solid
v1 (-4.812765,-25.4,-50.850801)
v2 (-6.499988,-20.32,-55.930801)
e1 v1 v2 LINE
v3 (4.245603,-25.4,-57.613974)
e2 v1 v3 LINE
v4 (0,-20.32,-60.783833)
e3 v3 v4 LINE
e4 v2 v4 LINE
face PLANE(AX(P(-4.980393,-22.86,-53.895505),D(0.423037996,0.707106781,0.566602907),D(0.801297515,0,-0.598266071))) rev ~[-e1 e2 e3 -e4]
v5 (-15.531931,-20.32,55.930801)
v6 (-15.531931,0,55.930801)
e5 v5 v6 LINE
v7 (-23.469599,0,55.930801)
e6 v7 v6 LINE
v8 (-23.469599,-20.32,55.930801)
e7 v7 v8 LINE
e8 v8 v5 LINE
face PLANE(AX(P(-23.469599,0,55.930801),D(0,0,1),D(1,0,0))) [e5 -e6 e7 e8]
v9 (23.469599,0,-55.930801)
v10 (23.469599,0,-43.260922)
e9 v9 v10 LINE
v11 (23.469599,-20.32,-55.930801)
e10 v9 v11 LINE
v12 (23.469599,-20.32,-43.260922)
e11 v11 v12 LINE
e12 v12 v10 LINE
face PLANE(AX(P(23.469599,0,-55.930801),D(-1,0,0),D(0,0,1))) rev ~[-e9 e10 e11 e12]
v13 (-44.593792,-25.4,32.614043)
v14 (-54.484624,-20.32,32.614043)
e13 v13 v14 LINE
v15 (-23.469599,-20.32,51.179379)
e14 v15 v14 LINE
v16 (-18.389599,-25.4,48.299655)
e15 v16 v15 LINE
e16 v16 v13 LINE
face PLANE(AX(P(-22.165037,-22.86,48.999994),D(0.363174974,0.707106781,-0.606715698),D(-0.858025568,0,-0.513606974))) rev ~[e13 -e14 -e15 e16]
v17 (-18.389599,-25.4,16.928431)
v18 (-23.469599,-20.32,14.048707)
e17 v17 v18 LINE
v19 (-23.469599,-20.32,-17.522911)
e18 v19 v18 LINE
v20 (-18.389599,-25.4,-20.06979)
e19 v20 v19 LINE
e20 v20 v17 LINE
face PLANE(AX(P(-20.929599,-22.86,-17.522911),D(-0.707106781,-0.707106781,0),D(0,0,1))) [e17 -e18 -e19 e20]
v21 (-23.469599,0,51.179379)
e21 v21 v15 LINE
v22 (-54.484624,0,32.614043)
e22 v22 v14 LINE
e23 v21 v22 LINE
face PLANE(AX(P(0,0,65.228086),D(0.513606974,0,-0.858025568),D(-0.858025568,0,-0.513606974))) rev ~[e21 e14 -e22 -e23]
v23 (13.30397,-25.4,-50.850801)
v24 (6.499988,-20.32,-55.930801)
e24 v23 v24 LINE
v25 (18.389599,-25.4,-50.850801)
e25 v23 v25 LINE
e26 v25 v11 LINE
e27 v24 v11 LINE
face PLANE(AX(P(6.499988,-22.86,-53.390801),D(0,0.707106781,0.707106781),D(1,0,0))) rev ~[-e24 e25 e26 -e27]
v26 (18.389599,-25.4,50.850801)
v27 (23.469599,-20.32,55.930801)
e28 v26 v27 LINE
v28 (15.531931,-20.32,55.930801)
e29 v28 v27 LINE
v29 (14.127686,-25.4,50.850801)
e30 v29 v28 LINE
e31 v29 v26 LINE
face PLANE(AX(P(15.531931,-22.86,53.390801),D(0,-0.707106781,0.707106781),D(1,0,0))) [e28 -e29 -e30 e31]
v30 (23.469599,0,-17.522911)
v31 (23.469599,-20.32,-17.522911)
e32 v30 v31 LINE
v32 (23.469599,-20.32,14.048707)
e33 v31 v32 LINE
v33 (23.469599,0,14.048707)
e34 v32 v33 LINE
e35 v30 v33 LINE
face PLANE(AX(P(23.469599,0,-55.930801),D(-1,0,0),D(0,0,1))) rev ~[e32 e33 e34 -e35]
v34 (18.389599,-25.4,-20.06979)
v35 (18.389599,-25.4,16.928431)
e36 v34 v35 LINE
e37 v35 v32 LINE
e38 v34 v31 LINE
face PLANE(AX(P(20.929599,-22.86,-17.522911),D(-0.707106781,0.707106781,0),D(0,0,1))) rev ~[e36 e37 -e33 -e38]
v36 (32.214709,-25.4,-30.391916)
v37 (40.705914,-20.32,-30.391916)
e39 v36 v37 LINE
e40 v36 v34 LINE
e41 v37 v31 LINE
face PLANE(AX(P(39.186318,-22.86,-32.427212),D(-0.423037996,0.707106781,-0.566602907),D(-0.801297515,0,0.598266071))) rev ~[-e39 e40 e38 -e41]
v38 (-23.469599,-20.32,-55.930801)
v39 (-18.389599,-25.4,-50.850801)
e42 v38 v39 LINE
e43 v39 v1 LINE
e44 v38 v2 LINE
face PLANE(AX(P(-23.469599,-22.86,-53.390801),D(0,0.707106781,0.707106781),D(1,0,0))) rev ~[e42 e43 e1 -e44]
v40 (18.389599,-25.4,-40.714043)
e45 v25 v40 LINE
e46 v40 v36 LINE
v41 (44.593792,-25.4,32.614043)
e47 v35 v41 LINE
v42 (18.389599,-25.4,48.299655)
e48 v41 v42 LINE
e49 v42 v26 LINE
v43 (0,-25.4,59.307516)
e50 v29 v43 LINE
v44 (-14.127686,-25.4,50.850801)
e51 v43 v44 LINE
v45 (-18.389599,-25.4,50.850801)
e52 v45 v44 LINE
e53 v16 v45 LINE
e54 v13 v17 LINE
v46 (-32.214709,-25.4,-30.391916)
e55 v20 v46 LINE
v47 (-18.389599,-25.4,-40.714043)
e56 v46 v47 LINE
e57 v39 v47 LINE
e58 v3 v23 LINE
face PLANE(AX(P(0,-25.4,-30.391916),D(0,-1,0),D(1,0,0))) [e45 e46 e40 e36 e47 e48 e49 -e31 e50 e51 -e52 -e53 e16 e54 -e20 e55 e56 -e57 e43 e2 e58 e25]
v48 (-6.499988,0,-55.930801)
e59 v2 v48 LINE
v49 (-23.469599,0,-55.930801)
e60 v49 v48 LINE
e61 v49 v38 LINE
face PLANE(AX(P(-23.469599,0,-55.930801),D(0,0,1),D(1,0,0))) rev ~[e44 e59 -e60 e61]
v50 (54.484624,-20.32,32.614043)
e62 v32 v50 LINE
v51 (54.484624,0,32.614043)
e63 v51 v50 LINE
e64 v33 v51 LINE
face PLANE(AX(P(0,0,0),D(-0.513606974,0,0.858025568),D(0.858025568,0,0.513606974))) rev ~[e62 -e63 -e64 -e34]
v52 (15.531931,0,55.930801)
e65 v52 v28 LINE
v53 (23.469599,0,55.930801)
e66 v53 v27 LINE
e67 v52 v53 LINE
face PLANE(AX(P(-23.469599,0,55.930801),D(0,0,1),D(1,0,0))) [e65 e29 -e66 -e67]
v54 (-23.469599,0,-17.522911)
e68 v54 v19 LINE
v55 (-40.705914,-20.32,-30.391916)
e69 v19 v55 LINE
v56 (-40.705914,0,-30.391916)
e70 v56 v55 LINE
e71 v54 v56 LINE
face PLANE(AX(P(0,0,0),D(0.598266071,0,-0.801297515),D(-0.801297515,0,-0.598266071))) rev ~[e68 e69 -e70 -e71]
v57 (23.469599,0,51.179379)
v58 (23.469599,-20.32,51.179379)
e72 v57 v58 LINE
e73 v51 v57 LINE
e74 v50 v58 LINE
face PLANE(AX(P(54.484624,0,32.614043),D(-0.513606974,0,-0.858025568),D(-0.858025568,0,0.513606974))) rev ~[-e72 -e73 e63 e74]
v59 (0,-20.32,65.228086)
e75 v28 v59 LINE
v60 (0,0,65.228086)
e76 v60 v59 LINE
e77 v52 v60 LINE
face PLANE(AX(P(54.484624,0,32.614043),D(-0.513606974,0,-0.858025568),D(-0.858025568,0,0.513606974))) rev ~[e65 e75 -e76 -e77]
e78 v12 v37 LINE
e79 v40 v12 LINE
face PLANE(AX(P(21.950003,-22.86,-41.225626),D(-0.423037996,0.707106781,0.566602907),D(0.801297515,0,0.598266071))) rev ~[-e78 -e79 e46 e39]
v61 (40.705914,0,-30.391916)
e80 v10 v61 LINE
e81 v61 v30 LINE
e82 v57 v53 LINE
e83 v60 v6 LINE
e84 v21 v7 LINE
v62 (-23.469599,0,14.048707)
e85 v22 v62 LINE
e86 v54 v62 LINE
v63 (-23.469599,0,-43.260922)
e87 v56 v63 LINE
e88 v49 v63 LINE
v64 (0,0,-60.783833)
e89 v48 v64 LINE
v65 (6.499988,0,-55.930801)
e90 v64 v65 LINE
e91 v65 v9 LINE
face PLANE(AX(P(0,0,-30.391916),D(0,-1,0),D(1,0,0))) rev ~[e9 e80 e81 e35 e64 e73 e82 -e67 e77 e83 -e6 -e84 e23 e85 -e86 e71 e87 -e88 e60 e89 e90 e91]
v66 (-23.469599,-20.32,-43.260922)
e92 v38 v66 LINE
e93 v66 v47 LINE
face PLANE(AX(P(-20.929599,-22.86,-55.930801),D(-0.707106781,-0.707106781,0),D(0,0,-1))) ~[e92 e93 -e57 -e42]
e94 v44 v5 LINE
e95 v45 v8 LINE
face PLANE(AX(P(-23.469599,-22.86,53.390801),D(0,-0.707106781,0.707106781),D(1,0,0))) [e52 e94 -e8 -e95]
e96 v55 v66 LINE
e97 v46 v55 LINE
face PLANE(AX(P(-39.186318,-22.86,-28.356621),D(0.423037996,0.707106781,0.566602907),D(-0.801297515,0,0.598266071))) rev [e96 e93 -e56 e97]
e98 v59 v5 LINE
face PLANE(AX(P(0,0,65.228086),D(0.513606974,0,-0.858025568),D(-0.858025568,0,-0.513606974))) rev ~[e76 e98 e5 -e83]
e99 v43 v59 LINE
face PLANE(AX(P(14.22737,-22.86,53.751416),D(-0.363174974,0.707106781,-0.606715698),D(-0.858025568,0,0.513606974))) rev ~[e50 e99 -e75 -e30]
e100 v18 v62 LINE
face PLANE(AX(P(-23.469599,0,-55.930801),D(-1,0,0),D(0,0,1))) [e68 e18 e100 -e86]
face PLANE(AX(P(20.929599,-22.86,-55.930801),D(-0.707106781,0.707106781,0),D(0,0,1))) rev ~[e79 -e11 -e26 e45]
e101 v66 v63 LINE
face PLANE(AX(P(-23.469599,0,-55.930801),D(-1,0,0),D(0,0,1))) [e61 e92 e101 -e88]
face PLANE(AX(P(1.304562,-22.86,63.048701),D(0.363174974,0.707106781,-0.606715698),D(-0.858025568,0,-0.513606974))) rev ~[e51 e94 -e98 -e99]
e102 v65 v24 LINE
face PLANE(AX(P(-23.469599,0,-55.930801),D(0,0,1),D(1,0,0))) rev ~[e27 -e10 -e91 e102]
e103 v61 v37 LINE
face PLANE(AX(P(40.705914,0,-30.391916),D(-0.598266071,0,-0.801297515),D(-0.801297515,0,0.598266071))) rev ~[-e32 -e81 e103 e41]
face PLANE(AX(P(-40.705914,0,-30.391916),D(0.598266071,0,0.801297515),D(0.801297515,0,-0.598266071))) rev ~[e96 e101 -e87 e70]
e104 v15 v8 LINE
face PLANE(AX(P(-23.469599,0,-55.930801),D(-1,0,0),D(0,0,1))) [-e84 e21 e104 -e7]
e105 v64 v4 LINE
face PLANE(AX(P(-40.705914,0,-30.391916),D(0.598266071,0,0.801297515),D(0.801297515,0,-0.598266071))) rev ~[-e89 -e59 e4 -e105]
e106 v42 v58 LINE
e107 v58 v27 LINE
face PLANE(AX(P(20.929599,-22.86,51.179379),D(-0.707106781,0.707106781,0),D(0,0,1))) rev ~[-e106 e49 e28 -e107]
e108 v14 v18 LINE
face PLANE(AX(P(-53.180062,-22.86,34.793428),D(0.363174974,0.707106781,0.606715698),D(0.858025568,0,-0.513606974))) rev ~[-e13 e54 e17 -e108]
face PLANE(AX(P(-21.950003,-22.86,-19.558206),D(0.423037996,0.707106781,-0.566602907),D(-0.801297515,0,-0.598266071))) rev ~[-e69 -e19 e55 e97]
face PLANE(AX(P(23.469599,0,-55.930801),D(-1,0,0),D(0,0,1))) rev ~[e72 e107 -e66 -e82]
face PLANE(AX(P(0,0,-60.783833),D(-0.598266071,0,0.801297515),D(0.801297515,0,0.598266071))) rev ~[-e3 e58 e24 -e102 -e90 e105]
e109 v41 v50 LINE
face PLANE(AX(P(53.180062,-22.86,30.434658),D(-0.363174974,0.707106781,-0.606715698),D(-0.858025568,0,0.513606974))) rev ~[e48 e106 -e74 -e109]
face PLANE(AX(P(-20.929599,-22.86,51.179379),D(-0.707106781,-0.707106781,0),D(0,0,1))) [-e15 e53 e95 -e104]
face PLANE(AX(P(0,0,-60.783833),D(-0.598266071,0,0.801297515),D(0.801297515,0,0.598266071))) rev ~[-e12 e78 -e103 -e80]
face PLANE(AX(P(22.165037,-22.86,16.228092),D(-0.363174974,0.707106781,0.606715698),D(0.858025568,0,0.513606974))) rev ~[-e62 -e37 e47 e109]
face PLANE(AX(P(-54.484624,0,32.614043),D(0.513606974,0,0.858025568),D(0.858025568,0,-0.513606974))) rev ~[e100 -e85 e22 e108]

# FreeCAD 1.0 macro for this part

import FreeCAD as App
import Part
import Sketcher
from FreeCAD import Vector
Q = App.Units.Quantity


def edges_at(feature, points):
    """Names of the edges that pass closest to the given points."""
    edges = feature.Shape.Edges
    near = lambda p: min(range(len(edges)), key=lambda i: edges[i].distToShape(Part.Vertex(*p))[0])
    return sorted({f"Edge{near(p) + 1}" for p in points})


def add_polygon(sketch, points):
    """Adds a closed chain of lines whose ends are joined by coincident constraints."""
    first, n = sketch.GeometryCount, len(points)
    for a, b in zip(points, points[1:] + points[:1]):
        sketch.addGeometry(Part.LineSegment(App.Vector(*a, 0), App.Vector(*b, 0)), False)
    for i in range(n):
        sketch.addConstraint(Sketcher.Constraint("Coincident", first + i, 2, first + (i + 1) % n, 1))

doc = App.newDocument("Part")
params = doc.addObject("Spreadsheet::Sheet", "Params")
for row, (alias, value) in enumerate([
    ("sketch1_width", "1.8479999 in"),
    ("sketch1_height", "4.4040001 in"),
    ("pad1_length", "1 in"),
    ("sketch2_length", "2.5 in"),
    ("pad2_length", "1 in"),
    ("sketch3_length", "2 in"),
    ("pad3_length", "1 in"),
    ("chamfer_size", "0.2 in"),
], start=1):
    params.set(f"A{row}", alias)
    params.set(f"B{row}", "=" + value)
    params.setAlias(f"B{row}", alias)

body = doc.addObject("PartDesign::Body", "Body")

sketch1 = body.newObject("Sketcher::SketchObject", "Sketch")
sketch1.AttachmentSupport = (doc.getObject("XZ_Plane"), [""])
sketch1.MapMode = "FlatFace"
add_polygon(sketch1, [(-23.469599, 55.930801), (-23.469599, -55.930801), (23.469599, -55.930801), (23.469599, 55.930801)])
sketch1.addConstraint(Sketcher.Constraint("Vertical", 0))
sketch1.addConstraint(Sketcher.Constraint("Horizontal", 1))
sketch1.addConstraint(Sketcher.Constraint("Vertical", 2))
sketch1.addConstraint(Sketcher.Constraint("Horizontal", 3))
sketch1.addConstraint(Sketcher.Constraint("Symmetric", 0, 2, 2, 2, -1, 1))
sketch1.addConstraint(Sketcher.Constraint("DistanceX", 1, 1, 1, 2, Q("1.8479999 in")))
sketch1.addConstraint(Sketcher.Constraint("DistanceY", 0, 2, 0, 1, Q("4.4040001 in")))
sketch1.setExpression("Constraints[9]", "Params.sketch1_width")
sketch1.setExpression("Constraints[10]", "Params.sketch1_height")
pad1 = body.newObject("PartDesign::Pad", "Pad")
pad1.Profile = sketch1
pad1.setExpression("Length", "Params.pad1_length")

sketch2 = body.newObject("Sketcher::SketchObject", "Sketch001")
sketch2.AttachmentSupport = (doc.getObject("XZ_Plane"), [""])
sketch2.MapMode = "FlatFace"
add_polygon(sketch2, [(-54.484624, 32.614043), (0, 0), (54.484624, 32.614043), (0, 65.228086)])
sketch2.addConstraint(Sketcher.Constraint("Coincident", 0, 2, -1, 1))
sketch2.addConstraint(Sketcher.Constraint("Symmetric", 1, 2, 3, 2, -2))
sketch2.addConstraint(Sketcher.Constraint("PointOnObject", 2, 2, -2))
sketch2.addConstraint(Sketcher.Constraint("Parallel", 0, 2))
sketch2.addConstraint(Sketcher.Constraint("Distance", 0, Q("2.5 in")))
sketch2.addConstraint(Sketcher.Constraint("DistanceX", -1, 1, 1, 2, Q("54.484624 mm")))
sketch2.setExpression("Constraints[8]", "Params.sketch2_length")
pad2 = body.newObject("PartDesign::Pad", "Pad001")
pad2.Profile = sketch2
pad2.setExpression("Length", "Params.pad2_length")

sketch3 = body.newObject("Sketcher::SketchObject", "Sketch002")
sketch3.AttachmentSupport = (doc.getObject("XZ_Plane"), [""])
sketch3.MapMode = "FlatFace"
add_polygon(sketch3, [(-40.705914, -30.391916), (0, -60.783833), (40.705914, -30.391916), (0, 0)])
sketch3.addConstraint(Sketcher.Constraint("Coincident", 2, 2, -1, 1))
sketch3.addConstraint(Sketcher.Constraint("Symmetric", 1, 2, 3, 2, -2))
sketch3.addConstraint(Sketcher.Constraint("PointOnObject", 0, 2, -2))
sketch3.addConstraint(Sketcher.Constraint("Parallel", 0, 2))
sketch3.addConstraint(Sketcher.Constraint("Distance", 0, Q("2 in")))
sketch3.addConstraint(Sketcher.Constraint("DistanceY", 0, 2, -1, 1, Q("60.783833 mm")))
sketch3.setExpression("Constraints[8]", "Params.sketch3_length")
pad3 = body.newObject("PartDesign::Pad", "Pad002")
pad3.Profile = sketch3
pad3.setExpression("Length", "Params.pad3_length")
doc.recompute()

chamfer = body.newObject("PartDesign::Chamfer", "Chamfer")
chamfer.Base = (pad3, edges_at(pad3, [
    (-38.977, -25.4, 23.331),
    (-23.47, -25.4, -1.737),
    (-32.088, -25.4, -23.957),
    (-32.088, -25.4, -36.826),
    (-23.47, -25.4, -49.596),
    (-14.985, -25.4, -55.931),
    (-3.25, -25.4, -58.357),
    (14.985, -25.4, -55.931),
    (23.47, -25.4, -49.596),
    (32.088, -25.4, -36.826),
    (32.088, -25.4, -23.957),
    (23.47, -25.4, -1.737),
    (38.977, -25.4, 23.331),
    (38.977, -25.4, 41.897),
    (23.47, -25.4, 53.555),
    (19.501, -25.4, 55.931),
    (7.766, -25.4, 60.579),
    (-7.766, -25.4, 60.579),
    (-19.501, -25.4, 55.931),
    (-23.47, -25.4, 53.555),
    (-38.977, -25.4, 41.897),
]))
chamfer.setExpression("Size", "Params.chamfer_size")

doc.recompute()
